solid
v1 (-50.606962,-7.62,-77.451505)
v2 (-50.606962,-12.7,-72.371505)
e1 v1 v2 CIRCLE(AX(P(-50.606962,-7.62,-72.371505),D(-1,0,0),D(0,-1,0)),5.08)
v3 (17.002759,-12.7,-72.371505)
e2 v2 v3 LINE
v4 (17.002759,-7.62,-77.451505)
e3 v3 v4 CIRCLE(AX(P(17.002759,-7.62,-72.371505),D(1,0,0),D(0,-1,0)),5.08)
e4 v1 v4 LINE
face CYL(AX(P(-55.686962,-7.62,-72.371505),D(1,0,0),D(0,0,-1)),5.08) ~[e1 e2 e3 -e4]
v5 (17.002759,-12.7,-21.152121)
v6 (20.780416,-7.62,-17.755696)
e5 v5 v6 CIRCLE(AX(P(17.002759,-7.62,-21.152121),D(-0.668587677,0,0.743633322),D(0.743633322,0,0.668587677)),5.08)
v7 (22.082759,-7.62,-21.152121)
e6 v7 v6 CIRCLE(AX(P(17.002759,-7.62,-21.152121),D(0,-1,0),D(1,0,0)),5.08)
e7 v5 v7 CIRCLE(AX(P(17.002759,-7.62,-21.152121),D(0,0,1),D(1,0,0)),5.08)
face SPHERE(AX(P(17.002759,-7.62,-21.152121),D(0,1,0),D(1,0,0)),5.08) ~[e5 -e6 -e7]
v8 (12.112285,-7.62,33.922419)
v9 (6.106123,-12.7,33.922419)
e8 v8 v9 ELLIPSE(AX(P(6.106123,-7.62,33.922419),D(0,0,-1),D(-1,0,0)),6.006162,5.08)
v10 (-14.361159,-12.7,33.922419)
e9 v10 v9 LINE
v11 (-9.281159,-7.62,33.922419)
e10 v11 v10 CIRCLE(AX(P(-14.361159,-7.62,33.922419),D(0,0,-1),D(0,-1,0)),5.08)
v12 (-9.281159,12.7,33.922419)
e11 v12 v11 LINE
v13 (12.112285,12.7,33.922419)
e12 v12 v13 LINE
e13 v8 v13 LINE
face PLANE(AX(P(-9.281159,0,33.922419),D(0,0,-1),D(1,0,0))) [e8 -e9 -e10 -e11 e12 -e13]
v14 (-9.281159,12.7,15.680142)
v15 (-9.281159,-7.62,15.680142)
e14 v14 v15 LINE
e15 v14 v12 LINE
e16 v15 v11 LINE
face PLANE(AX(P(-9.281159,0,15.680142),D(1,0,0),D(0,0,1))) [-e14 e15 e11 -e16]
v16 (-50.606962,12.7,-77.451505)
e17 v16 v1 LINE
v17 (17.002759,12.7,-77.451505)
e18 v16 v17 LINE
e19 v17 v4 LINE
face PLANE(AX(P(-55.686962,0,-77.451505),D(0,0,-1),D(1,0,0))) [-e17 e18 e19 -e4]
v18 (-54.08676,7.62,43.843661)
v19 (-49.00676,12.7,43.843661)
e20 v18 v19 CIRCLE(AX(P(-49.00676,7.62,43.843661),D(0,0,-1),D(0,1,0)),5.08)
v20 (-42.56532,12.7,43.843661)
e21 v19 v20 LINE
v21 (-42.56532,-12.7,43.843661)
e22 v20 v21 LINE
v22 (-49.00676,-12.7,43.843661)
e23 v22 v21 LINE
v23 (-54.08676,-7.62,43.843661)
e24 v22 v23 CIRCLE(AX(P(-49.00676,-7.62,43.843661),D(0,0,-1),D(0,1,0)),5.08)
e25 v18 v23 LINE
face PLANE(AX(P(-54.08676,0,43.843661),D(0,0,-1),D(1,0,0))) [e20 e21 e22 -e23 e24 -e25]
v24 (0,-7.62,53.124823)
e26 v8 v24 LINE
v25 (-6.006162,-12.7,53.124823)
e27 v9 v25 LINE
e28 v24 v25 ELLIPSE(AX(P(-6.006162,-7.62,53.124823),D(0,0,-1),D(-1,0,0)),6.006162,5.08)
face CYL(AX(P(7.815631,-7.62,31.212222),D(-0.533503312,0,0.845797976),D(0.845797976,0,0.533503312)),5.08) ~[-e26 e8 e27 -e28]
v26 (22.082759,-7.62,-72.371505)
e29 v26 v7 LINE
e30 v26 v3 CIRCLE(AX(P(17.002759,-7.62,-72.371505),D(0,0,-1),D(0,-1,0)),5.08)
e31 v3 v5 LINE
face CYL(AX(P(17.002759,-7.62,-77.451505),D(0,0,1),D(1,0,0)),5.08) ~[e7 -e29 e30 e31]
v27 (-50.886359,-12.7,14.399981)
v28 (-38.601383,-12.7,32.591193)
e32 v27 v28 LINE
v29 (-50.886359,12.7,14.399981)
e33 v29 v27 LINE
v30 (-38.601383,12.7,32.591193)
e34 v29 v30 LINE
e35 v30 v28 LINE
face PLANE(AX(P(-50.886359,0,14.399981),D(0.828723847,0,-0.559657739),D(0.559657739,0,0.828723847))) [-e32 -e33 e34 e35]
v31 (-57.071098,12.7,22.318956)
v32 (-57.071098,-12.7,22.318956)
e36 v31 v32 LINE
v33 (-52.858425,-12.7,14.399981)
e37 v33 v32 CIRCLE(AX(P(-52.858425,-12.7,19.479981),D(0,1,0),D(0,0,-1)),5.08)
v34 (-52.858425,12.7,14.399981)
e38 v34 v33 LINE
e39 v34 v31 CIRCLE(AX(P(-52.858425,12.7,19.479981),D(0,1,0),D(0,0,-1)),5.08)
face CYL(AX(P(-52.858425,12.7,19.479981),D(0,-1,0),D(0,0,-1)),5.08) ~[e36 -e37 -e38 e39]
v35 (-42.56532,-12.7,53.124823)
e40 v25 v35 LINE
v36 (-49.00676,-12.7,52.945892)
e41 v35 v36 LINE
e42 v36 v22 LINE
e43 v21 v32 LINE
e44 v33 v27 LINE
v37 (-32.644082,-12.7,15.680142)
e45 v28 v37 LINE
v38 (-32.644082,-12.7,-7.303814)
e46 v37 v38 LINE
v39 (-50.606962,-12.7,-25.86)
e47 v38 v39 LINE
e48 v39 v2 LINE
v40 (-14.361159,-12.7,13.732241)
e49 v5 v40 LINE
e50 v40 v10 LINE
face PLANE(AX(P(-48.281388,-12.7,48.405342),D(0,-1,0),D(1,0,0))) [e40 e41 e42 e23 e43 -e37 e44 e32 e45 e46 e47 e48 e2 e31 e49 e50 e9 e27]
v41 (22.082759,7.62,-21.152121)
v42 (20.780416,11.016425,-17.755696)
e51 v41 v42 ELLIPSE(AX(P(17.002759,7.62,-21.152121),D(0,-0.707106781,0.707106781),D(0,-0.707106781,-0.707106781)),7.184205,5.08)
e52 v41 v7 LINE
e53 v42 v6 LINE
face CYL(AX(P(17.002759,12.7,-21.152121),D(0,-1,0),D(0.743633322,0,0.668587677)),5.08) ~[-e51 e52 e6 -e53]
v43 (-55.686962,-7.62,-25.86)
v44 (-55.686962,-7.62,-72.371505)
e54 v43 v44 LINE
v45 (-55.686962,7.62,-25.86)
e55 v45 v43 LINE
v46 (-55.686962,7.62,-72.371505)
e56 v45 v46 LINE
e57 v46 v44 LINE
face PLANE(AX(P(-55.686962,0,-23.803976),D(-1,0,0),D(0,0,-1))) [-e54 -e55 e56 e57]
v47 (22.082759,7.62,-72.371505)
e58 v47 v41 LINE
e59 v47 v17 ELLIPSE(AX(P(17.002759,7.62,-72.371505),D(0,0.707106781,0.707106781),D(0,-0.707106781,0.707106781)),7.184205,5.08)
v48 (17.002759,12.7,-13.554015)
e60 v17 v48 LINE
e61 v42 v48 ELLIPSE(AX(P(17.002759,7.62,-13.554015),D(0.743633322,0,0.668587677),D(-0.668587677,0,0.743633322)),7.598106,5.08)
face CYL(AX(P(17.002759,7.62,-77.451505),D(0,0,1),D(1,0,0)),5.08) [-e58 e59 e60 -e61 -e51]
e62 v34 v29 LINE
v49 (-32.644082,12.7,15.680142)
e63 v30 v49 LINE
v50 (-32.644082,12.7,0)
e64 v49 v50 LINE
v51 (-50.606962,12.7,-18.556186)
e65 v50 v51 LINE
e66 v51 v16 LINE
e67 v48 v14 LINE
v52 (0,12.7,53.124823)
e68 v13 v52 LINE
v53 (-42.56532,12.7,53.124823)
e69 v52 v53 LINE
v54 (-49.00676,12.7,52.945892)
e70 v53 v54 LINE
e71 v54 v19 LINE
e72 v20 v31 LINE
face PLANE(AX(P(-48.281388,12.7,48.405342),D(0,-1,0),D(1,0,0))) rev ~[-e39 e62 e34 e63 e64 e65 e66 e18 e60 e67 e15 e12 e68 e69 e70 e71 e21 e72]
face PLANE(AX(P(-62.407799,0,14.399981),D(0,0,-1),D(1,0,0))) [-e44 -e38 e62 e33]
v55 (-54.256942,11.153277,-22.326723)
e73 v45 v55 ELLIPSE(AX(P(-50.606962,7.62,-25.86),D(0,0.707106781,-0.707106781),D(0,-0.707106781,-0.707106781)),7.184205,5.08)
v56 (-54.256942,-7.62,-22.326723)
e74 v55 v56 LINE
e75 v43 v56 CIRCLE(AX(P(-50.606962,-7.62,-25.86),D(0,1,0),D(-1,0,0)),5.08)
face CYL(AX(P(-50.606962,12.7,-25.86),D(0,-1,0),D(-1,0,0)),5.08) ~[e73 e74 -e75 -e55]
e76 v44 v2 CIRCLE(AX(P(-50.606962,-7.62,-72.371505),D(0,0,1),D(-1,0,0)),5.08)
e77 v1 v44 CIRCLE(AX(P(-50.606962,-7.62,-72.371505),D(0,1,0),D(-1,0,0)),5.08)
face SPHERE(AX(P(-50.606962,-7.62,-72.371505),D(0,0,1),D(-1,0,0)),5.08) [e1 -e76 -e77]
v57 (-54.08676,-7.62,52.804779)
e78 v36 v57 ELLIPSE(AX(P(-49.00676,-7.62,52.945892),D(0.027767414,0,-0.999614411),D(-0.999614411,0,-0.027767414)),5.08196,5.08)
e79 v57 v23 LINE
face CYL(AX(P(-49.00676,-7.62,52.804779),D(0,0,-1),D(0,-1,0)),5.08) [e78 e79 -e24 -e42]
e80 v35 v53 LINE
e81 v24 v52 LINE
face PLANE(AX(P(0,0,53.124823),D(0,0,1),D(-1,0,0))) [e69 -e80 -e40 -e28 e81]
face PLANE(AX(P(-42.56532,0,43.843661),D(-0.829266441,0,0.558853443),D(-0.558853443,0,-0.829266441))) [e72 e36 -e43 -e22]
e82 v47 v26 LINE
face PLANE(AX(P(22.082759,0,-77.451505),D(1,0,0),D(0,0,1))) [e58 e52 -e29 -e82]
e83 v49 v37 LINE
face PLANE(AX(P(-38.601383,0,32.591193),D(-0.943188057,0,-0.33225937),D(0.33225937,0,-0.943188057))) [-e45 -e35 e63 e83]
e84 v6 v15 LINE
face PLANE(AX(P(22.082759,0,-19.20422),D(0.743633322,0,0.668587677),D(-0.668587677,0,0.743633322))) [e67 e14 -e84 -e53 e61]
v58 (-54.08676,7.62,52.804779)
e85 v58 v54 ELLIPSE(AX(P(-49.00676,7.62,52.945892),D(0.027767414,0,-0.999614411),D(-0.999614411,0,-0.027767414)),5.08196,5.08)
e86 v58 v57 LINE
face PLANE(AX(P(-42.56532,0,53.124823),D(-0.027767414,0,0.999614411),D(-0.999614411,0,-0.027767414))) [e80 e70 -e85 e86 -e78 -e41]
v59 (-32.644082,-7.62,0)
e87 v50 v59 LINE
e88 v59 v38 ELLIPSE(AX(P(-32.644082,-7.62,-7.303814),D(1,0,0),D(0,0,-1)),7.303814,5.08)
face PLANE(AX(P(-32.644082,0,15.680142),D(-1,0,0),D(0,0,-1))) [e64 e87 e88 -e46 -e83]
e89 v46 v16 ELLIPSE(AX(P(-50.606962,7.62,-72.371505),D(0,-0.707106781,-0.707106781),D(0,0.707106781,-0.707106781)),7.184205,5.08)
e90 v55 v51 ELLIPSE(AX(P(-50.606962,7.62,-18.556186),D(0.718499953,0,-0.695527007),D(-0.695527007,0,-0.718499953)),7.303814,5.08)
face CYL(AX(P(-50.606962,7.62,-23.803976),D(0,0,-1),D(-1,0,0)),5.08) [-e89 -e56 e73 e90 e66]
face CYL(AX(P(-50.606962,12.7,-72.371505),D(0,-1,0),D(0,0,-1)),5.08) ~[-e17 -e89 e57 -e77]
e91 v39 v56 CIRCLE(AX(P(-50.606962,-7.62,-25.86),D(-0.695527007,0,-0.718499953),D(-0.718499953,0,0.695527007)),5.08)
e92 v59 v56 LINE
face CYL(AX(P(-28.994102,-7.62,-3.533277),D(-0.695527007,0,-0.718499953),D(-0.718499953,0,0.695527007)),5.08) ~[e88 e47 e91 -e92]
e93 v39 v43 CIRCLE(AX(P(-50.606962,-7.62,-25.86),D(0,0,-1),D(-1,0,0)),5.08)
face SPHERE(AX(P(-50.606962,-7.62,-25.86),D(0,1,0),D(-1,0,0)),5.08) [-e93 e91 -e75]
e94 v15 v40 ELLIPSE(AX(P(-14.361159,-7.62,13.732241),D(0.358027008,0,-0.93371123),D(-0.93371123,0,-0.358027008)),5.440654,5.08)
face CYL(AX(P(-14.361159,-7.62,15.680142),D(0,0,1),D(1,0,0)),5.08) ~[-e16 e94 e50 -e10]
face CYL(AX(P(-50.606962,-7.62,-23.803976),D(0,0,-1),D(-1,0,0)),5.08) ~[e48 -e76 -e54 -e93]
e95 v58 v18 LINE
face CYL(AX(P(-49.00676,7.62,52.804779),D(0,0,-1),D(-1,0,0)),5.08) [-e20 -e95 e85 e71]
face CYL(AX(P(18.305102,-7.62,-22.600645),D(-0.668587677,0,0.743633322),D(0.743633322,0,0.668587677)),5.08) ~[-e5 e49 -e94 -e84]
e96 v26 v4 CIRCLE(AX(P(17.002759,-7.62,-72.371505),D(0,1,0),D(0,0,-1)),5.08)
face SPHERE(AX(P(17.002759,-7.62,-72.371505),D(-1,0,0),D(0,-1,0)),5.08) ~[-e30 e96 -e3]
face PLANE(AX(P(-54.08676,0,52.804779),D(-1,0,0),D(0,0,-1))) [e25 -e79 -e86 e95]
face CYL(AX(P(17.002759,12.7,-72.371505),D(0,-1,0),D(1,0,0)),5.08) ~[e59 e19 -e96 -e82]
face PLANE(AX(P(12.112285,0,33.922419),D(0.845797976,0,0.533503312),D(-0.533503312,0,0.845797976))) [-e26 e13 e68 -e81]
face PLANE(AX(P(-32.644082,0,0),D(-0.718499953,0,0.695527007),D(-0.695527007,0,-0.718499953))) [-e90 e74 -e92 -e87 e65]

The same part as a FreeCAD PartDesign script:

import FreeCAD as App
import Part
import Sketcher
Q = App.Units.Quantity


def edges_at(feature, points):
    """Names of the edges that pass closest to the given points."""
    edges = feature.Shape.Edges
    near = lambda p: min(range(len(edges)), key=lambda i: edges[i].distToShape(Part.Vertex(*p))[0])
    return sorted({f"Edge{near(p) + 1}" for p in points})


def add_polygon(sketch, points):
    """Adds a closed chain of lines whose ends are joined by coincident constraints."""
    first, n = sketch.GeometryCount, len(points)
    for a, b in zip(points, points[1:] + points[:1]):
        sketch.addGeometry(Part.LineSegment(App.Vector(*a, 0), App.Vector(*b, 0)), False)
    for i in range(n):
        sketch.addConstraint(Sketcher.Constraint("Coincident", first + i, 2, first + (i + 1) % n, 1))

doc = App.newDocument("Part")
body = doc.addObject("PartDesign::Body", "Body")

sketch1 = doc.addObject("Sketcher::SketchObject", "Sketch")
body.addObject(sketch1)
sketch1.AttachmentSupport = (doc.XZ_Plane, [""])
sketch1.MapMode = "FlatFace"
add_polygon(sketch1, [(-43, 53), (-54, 53), (-54, 44), (-43, 44), (-62, 14), (-51, 14), (-39, 33), (-33, 16), (-33, 0), (-56, -24), (-56, -77), (22, -77), (22, -19), (-9, 16), (-9, 34), (12, 34), (0, 53)])
sketch1.addConstraint(Sketcher.Constraint("Vertical", 1))
sketch1.addConstraint(Sketcher.Constraint("Horizontal", 2))
sketch1.addConstraint(Sketcher.Constraint("Horizontal", 4))
sketch1.addConstraint(Sketcher.Constraint("Vertical", 7))
sketch1.addConstraint(Sketcher.Constraint("Vertical", 9))
sketch1.addConstraint(Sketcher.Constraint("Horizontal", 10))
sketch1.addConstraint(Sketcher.Constraint("Vertical", 11))
sketch1.addConstraint(Sketcher.Constraint("Vertical", 13))
sketch1.addConstraint(Sketcher.Constraint("Horizontal", 14))
sketch1.addConstraint(Sketcher.Constraint("Horizontal", 16))
sketch1.addConstraint(Sketcher.Constraint("PointOnObject", 7, 2, -1))
sketch1.addConstraint(Sketcher.Constraint("PointOnObject", 15, 2, -2))
sketch1.addConstraint(Sketcher.Constraint("Horizontal", 6, 2, 12, 2))
sketch1.addConstraint(Sketcher.Constraint("Vertical", 2, 2, 16, 2))
sketch1.addConstraint(Sketcher.Constraint("Equal", 2, 4))
sketch1.addConstraint(Sketcher.Constraint("DistanceX", 2, 1, 2, 2, Q("0.4536 in")))
sketch1.addConstraint(Sketcher.Constraint("DistanceX", 10, 1, 10, 2, Q("3.0618 in")))
sketch1.addConstraint(Sketcher.Constraint("DistanceX", 16, 2, 16, 1, Q("1.6758 in")))
sketch1.addConstraint(Sketcher.Constraint("DistanceY", 1, 2, 1, 1, Q("0.3527999 in")))
sketch1.addConstraint(Sketcher.Constraint("DistanceY", 11, 1, 11, 2, Q("2.2932002 in")))
sketch1.addConstraint(Sketcher.Constraint("DistanceY", 13, 1, 13, 2, Q("0.7181999 in")))
sketch1.addConstraint(Sketcher.Constraint("DistanceX", 3, 2, -1, 1, Q("2.457 in")))
sketch1.addConstraint(Sketcher.Constraint("DistanceY", 3, 2, 0, 2, Q("1.5119999 in")))
sketch1.addConstraint(Sketcher.Constraint("DistanceX", 8, 2, 4, 2, Q("0.1890001 in")))
sketch1.addConstraint(Sketcher.Constraint("DistanceX", 4, 2, 12, 2, Q("1.638 in")))
sketch1.addConstraint(Sketcher.Constraint("DistanceY", 13, 2, 15, 2, Q("0.7560002 in")))
sketch1.addConstraint(Sketcher.Constraint("DistanceX", 6, 2, -1, 1, Q("1.2852001 in")))
sketch1.addConstraint(Sketcher.Constraint("DistanceY", 4, 2, 6, 2, Q("0.0504 in")))
sketch1.addConstraint(Sketcher.Constraint("DistanceY", 11, 2, 6, 2, Q("1.3734001 in")))
sketch1.addConstraint(Sketcher.Constraint("Distance", 8, Q("33.130101 mm")))
sketch1.addConstraint(Sketcher.Constraint("Distance", 15, Q("22.703299 mm")))
sketch1.addConstraint(Sketcher.Constraint("DistanceY", 9, 2, 9, 1, Q("53.647529 mm")))
sketch1.addConstraint(Sketcher.Constraint("DistanceX", 5, 2, 6, 2, Q("5.957301 mm")))
sketch1.addConstraint(Sketcher.Constraint("Distance", 6, Q("17.92967 mm")))
pad1 = doc.addObject("PartDesign::Pad", "Pad")
body.addObject(pad1)
pad1.Profile = sketch1
pad1.Length = Q("1 in")
pad1.Midplane = True
doc.recompute()

fillet = doc.addObject("PartDesign::Fillet", "Fillet")
body.addObject(fillet)
fillet.Base = (pad1, edges_at(pad1, [
    (-55.687, -12.7, -50.628),
    (-44.166, -12.7, -11.902),
    (-55.687, 0, -23.804),
    (-55.687, 12.7, -50.628),
    (-55.687, 0, -77.452),
    (-16.802, -12.7, -77.452),
    (22.083, -12.7, -48.328),
    (6.401, -12.7, -1.762),
    (-9.281, -12.7, 24.801),
    (6.056, -12.7, 43.524),
    (-54.087, -12.7, 48.324),
    (-54.087, 12.7, 48.324),
    (-62.408, 0, 14.4),
    (22.083, 12.7, -48.328),
    (22.083, 0, -19.204),
    (22.083, 0, -77.452),
]))
fillet.Radius = Q("0.2 in")

doc.recompute()
